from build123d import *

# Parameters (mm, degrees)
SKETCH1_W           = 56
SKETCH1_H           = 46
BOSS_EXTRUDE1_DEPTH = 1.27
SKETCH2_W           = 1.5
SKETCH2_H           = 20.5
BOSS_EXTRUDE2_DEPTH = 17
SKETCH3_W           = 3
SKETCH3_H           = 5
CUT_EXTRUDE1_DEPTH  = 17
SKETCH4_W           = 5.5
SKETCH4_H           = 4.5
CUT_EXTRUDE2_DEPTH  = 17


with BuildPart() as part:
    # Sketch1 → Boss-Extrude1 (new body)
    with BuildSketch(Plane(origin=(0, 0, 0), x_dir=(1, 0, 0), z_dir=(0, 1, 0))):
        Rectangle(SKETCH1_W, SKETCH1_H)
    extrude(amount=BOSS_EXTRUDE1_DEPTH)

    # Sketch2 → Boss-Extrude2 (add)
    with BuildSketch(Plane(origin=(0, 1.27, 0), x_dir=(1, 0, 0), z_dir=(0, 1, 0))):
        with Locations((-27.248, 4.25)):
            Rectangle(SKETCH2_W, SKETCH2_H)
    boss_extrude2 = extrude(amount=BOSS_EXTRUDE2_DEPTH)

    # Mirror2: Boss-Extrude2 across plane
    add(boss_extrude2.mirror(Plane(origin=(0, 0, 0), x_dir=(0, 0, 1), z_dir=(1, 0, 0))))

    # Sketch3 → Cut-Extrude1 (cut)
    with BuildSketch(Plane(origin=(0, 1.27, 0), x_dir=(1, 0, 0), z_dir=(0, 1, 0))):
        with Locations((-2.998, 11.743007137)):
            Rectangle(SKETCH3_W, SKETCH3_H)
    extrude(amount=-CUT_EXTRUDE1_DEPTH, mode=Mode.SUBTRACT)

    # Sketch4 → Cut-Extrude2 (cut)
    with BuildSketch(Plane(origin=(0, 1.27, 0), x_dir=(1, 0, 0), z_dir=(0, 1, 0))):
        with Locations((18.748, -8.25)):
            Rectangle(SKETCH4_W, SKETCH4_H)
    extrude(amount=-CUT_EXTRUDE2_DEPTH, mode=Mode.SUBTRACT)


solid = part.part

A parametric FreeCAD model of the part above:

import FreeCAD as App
import Part
import Sketcher
from FreeCAD import Vector
Q = App.Units.Quantity

doc = App.newDocument("Part")
params = doc.addObject("Spreadsheet::Sheet", "Params")
for row, (alias, value) in enumerate([
    ("sketch1_width", "56 mm"),
    ("sketch1_height", "46 mm"),
    ("pad1_length", "1.27 mm"),
    ("sketch2_width", "1.5 mm"),
    ("sketch2_height", "20.5 mm"),
    ("pad2_length", "17 mm"),
    ("sketch3_width", "3 mm"),
    ("sketch3_height", "5 mm"),
    ("pocket1_length", "17 mm"),
    ("sketch4_width", "5.5 mm"),
    ("sketch4_height", "4.5 mm"),
    ("pocket2_length", "17 mm"),
], start=1):
    params.set(f"A{row}", alias)
    params.set(f"B{row}", "=" + value)
    params.setAlias(f"B{row}", alias)

body = doc.addObject("PartDesign::Body", "Body")

sketch1 = body.newObject("Sketcher::SketchObject", "Sketch")
sketch1.AttachmentSupport = (doc.getObject("XZ_Plane"), [""])
sketch1.MapMode = "FlatFace"
sketch1.addGeometry(Part.LineSegment(Vector(-28, -23, 0), Vector(-28, 23, 0)), False)
sketch1.addGeometry(Part.LineSegment(Vector(-28, 23, 0), Vector(28, 23, 0)), False)
sketch1.addGeometry(Part.LineSegment(Vector(28, 23, 0), Vector(28, -23, 0)), False)
sketch1.addGeometry(Part.LineSegment(Vector(28, -23, 0), Vector(-28, -23, 0)), False)
sketch1.addConstraint(Sketcher.Constraint("Coincident", 0, 2, 1, 1))
sketch1.addConstraint(Sketcher.Constraint("Coincident", 1, 2, 2, 1))
sketch1.addConstraint(Sketcher.Constraint("Coincident", 2, 2, 3, 1))
sketch1.addConstraint(Sketcher.Constraint("Coincident", 3, 2, 0, 1))
sketch1.addConstraint(Sketcher.Constraint("Vertical", 0))
sketch1.addConstraint(Sketcher.Constraint("Horizontal", 1))
sketch1.addConstraint(Sketcher.Constraint("Vertical", 2))
sketch1.addConstraint(Sketcher.Constraint("Horizontal", 3))
sketch1.addConstraint(Sketcher.Constraint("Symmetric", 0, 2, 2, 2, -1, 1))
sketch1.addConstraint(Sketcher.Constraint("DistanceX", 1, 1, 1, 2, Q("56 mm")))
sketch1.addConstraint(Sketcher.Constraint("DistanceY", 0, 1, 0, 2, Q("46 mm")))
sketch1.setExpression("Constraints[9]", "Params.sketch1_width")
sketch1.setExpression("Constraints[10]", "Params.sketch1_height")
pad1 = body.newObject("PartDesign::Pad", "Pad")
pad1.Profile = sketch1
pad1.setExpression("Length", "Params.pad1_length")
pad1.Reversed = True

sketch2 = body.newObject("Sketcher::SketchObject", "Sketch001")
sketch2.AttachmentSupport = (doc.getObject("XZ_Plane"), [""])
sketch2.MapMode = "FlatFace"
sketch2.AttachmentOffset = App.Placement(Vector(0, 0, -1.27), App.Rotation())
sketch2.addGeometry(Part.LineSegment(Vector(-28, -14.5, 0), Vector(-28, 6, 0)), False)
sketch2.addGeometry(Part.LineSegment(Vector(-28, 6, 0), Vector(-26.5, 6, 0)), False)
sketch2.addGeometry(Part.LineSegment(Vector(-26.5, 6, 0), Vector(-26.5, -14.5, 0)), False)
sketch2.addGeometry(Part.LineSegment(Vector(-26.5, -14.5, 0), Vector(-28, -14.5, 0)), False)
sketch2.addConstraint(Sketcher.Constraint("Coincident", 0, 2, 1, 1))
sketch2.addConstraint(Sketcher.Constraint("Coincident", 1, 2, 2, 1))
sketch2.addConstraint(Sketcher.Constraint("Coincident", 2, 2, 3, 1))
sketch2.addConstraint(Sketcher.Constraint("Coincident", 3, 2, 0, 1))
sketch2.addConstraint(Sketcher.Constraint("Vertical", 0))
sketch2.addConstraint(Sketcher.Constraint("Horizontal", 1))
sketch2.addConstraint(Sketcher.Constraint("Vertical", 2))
sketch2.addConstraint(Sketcher.Constraint("Horizontal", 3))
sketch2.addConstraint(Sketcher.Constraint("DistanceX", 1, 1, 1, 2, Q("1.5 mm")))
sketch2.addConstraint(Sketcher.Constraint("DistanceY", 0, 1, 0, 2, Q("20.5 mm")))
sketch2.addConstraint(Sketcher.Constraint("DistanceY", -1, 1, 0, 2, Q("6 mm")))
sketch2.addConstraint(Sketcher.Constraint("DistanceX", 0, 2, -1, 1, Q("27.998 mm")))
sketch2.setExpression("Constraints[8]", "Params.sketch2_width")
sketch2.setExpression("Constraints[9]", "Params.sketch2_height")
pad2 = body.newObject("PartDesign::Pad", "Pad001")
pad2.Profile = sketch2
pad2.setExpression("Length", "Params.pad2_length")
pad2.Reversed = True
doc.recompute()

mirrored = body.newObject("PartDesign::Mirrored", "Mirrored")
mirrored.Originals = [pad2]
mirrored.MirrorPlane = (doc.getObject("YZ_Plane"), [""])
body.Tip = mirrored

sketch3 = body.newObject("Sketcher::SketchObject", "Sketch002")
sketch3.AttachmentSupport = (doc.getObject("XZ_Plane"), [""])
sketch3.MapMode = "FlatFace"
sketch3.AttachmentOffset = App.Placement(Vector(0, 0, -1.27), App.Rotation())
sketch3.addGeometry(Part.LineSegment(Vector(-4.5, -14.2, 0), Vector(-4.5, -9.2, 0)), False)
sketch3.addGeometry(Part.LineSegment(Vector(-4.5, -9.2, 0), Vector(-1.5, -9.2, 0)), False)
sketch3.addGeometry(Part.LineSegment(Vector(-1.5, -9.2, 0), Vector(-1.5, -14.2, 0)), False)
sketch3.addGeometry(Part.LineSegment(Vector(-1.5, -14.2, 0), Vector(-4.5, -14.2, 0)), False)
sketch3.addConstraint(Sketcher.Constraint("Coincident", 0, 2, 1, 1))
sketch3.addConstraint(Sketcher.Constraint("Coincident", 1, 2, 2, 1))
sketch3.addConstraint(Sketcher.Constraint("Coincident", 2, 2, 3, 1))
sketch3.addConstraint(Sketcher.Constraint("Coincident", 3, 2, 0, 1))
sketch3.addConstraint(Sketcher.Constraint("Vertical", 0))
sketch3.addConstraint(Sketcher.Constraint("Horizontal", 1))
sketch3.addConstraint(Sketcher.Constraint("Vertical", 2))
sketch3.addConstraint(Sketcher.Constraint("Horizontal", 3))
sketch3.addConstraint(Sketcher.Constraint("DistanceX", 1, 1, 1, 2, Q("3 mm")))
sketch3.addConstraint(Sketcher.Constraint("DistanceY", 0, 1, 0, 2, Q("5 mm")))
sketch3.addConstraint(Sketcher.Constraint("DistanceX", 0, 2, -1, 1, Q("4.498 mm")))
sketch3.addConstraint(Sketcher.Constraint("DistanceY", 0, 2, -1, 1, Q("9.243007 mm")))
sketch3.setExpression("Constraints[8]", "Params.sketch3_width")
sketch3.setExpression("Constraints[9]", "Params.sketch3_height")
pocket1 = body.newObject("PartDesign::Pocket", "Pocket")
pocket1.Profile = sketch3
pocket1.setExpression("Length", "Params.pocket1_length")
pocket1.Reversed = True

sketch4 = body.newObject("Sketcher::SketchObject", "Sketch003")
sketch4.AttachmentSupport = (doc.getObject("XZ_Plane"), [""])
sketch4.MapMode = "FlatFace"
sketch4.AttachmentOffset = App.Placement(Vector(0, 0, -1.27), App.Rotation())
sketch4.addGeometry(Part.LineSegment(Vector(16, 6, 0), Vector(16, 10.5, 0)), False)
sketch4.addGeometry(Part.LineSegment(Vector(16, 10.5, 0), Vector(21.5, 10.5, 0)), False)
sketch4.addGeometry(Part.LineSegment(Vector(21.5, 10.5, 0), Vector(21.5, 6, 0)), False)
sketch4.addGeometry(Part.LineSegment(Vector(21.5, 6, 0), Vector(16, 6, 0)), False)
sketch4.addConstraint(Sketcher.Constraint("Coincident", 0, 2, 1, 1))
sketch4.addConstraint(Sketcher.Constraint("Coincident", 1, 2, 2, 1))
sketch4.addConstraint(Sketcher.Constraint("Coincident", 2, 2, 3, 1))
sketch4.addConstraint(Sketcher.Constraint("Coincident", 3, 2, 0, 1))
sketch4.addConstraint(Sketcher.Constraint("Vertical", 0))
sketch4.addConstraint(Sketcher.Constraint("Horizontal", 1))
sketch4.addConstraint(Sketcher.Constraint("Vertical", 2))
sketch4.addConstraint(Sketcher.Constraint("Horizontal", 3))
sketch4.addConstraint(Sketcher.Constraint("DistanceX", 1, 1, 1, 2, Q("5.5 mm")))
sketch4.addConstraint(Sketcher.Constraint("DistanceY", 0, 1, 0, 2, Q("4.5 mm")))
sketch4.addConstraint(Sketcher.Constraint("DistanceY", -1, 1, 2, 2, Q("6 mm")))
sketch4.addConstraint(Sketcher.Constraint("DistanceX", -1, 1, 0, 2, Q("15.998 mm")))
sketch4.setExpression("Constraints[8]", "Params.sketch4_width")
sketch4.setExpression("Constraints[9]", "Params.sketch4_height")
pocket2 = body.newObject("PartDesign::Pocket", "Pocket001")
pocket2.Profile = sketch4
pocket2.setExpression("Length", "Params.pocket2_length")
pocket2.Reversed = True

doc.recompute()
